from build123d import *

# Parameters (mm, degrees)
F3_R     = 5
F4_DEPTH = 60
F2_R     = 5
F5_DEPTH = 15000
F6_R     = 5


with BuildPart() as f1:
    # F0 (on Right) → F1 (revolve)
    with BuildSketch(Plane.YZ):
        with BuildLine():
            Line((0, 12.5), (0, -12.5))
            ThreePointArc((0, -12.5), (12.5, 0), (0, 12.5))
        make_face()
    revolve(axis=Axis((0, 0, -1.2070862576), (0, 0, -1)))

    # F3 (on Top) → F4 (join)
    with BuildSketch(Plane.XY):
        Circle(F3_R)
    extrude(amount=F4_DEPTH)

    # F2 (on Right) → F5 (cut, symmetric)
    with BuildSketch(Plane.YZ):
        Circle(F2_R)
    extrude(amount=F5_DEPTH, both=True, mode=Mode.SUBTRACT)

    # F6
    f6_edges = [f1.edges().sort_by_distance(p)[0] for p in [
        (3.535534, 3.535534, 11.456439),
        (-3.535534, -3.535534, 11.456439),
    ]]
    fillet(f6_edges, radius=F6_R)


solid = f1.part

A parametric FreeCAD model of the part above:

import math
import FreeCAD as App
import Part
import Sketcher
Q = App.Units.Quantity


def edges_at(feature, points):
    """Names of the edges that pass closest to the given points."""
    edges = feature.Shape.Edges
    near = lambda p: min(range(len(edges)), key=lambda i: edges[i].distToShape(Part.Vertex(*p))[0])
    return sorted({f"Edge{near(p) + 1}" for p in points})

doc = App.newDocument("Part")
body = doc.addObject("PartDesign::Body", "Body")

sketch1 = body.newObject("Sketcher::SketchObject", "Sketch")
sketch1.AttachmentSupport = (doc.getObject("YZ_Plane"), [""])
sketch1.MapMode = "FlatFace"
sketch1.addGeometry(Part.LineSegment(App.Vector(0, 12.5, 0), App.Vector(0, -12.5, 0)), False)
sketch1.addGeometry(Part.ArcOfCircle(Part.Circle(App.Vector(0, 0, 0), App.Vector(0, 0, 1), 12.5), math.radians(-90), math.radians(90)), False)
sketch1.addConstraint(Sketcher.Constraint("Coincident", 0, 1, 1, 2))
sketch1.addConstraint(Sketcher.Constraint("Coincident", 1, 1, 0, 2))
sketch1.addConstraint(Sketcher.Constraint("Vertical", 0))
sketch1.addConstraint(Sketcher.Constraint("Coincident", 1, 3, -1, 1))
sketch1.addConstraint(Sketcher.Constraint("PointOnObject", 0, 1, -2))
sketch1.addConstraint(Sketcher.Constraint("Radius", 1, Q("12.5 mm")))
revolution = body.newObject("PartDesign::Revolution", "Revolution")
revolution.Profile = sketch1
revolution.ReferenceAxis = (sketch1, ["V_Axis"])
revolution.Angle = 360

sketch2 = body.newObject("Sketcher::SketchObject", "Sketch001")
sketch2.AttachmentSupport = (doc.getObject("XY_Plane"), [""])
sketch2.MapMode = "FlatFace"
sketch2.addGeometry(Part.Circle(App.Vector(0, 0, 0), App.Vector(0, 0, 1), 5), False)
sketch2.addConstraint(Sketcher.Constraint("Coincident", 0, 3, -1, 1))
sketch2.addConstraint(Sketcher.Constraint("Diameter", 0, Q("10 mm")))
pad1 = body.newObject("PartDesign::Pad", "Pad")
pad1.Profile = sketch2
pad1.Length = 60

sketch3 = body.newObject("Sketcher::SketchObject", "Sketch002")
sketch3.AttachmentSupport = (doc.getObject("YZ_Plane"), [""])
sketch3.MapMode = "FlatFace"
sketch3.addGeometry(Part.Circle(App.Vector(0, 0, 0), App.Vector(0, 0, 1), 5), False)
sketch3.addConstraint(Sketcher.Constraint("Coincident", 0, 3, -1, 1))
sketch3.addConstraint(Sketcher.Constraint("Diameter", 0, Q("10 mm")))
pocket1 = body.newObject("PartDesign::Pocket", "Pocket")
pocket1.Profile = sketch3
pocket1.Length = 30000
pocket1.Midplane = True
doc.recompute()

fillet = body.newObject("PartDesign::Fillet", "Fillet")
fillet.Base = (pocket1, edges_at(pocket1, [(3.536, 3.536, 11.456), (-3.536, -3.536, 11.456)]))
fillet.Radius = 5

doc.recompute()
